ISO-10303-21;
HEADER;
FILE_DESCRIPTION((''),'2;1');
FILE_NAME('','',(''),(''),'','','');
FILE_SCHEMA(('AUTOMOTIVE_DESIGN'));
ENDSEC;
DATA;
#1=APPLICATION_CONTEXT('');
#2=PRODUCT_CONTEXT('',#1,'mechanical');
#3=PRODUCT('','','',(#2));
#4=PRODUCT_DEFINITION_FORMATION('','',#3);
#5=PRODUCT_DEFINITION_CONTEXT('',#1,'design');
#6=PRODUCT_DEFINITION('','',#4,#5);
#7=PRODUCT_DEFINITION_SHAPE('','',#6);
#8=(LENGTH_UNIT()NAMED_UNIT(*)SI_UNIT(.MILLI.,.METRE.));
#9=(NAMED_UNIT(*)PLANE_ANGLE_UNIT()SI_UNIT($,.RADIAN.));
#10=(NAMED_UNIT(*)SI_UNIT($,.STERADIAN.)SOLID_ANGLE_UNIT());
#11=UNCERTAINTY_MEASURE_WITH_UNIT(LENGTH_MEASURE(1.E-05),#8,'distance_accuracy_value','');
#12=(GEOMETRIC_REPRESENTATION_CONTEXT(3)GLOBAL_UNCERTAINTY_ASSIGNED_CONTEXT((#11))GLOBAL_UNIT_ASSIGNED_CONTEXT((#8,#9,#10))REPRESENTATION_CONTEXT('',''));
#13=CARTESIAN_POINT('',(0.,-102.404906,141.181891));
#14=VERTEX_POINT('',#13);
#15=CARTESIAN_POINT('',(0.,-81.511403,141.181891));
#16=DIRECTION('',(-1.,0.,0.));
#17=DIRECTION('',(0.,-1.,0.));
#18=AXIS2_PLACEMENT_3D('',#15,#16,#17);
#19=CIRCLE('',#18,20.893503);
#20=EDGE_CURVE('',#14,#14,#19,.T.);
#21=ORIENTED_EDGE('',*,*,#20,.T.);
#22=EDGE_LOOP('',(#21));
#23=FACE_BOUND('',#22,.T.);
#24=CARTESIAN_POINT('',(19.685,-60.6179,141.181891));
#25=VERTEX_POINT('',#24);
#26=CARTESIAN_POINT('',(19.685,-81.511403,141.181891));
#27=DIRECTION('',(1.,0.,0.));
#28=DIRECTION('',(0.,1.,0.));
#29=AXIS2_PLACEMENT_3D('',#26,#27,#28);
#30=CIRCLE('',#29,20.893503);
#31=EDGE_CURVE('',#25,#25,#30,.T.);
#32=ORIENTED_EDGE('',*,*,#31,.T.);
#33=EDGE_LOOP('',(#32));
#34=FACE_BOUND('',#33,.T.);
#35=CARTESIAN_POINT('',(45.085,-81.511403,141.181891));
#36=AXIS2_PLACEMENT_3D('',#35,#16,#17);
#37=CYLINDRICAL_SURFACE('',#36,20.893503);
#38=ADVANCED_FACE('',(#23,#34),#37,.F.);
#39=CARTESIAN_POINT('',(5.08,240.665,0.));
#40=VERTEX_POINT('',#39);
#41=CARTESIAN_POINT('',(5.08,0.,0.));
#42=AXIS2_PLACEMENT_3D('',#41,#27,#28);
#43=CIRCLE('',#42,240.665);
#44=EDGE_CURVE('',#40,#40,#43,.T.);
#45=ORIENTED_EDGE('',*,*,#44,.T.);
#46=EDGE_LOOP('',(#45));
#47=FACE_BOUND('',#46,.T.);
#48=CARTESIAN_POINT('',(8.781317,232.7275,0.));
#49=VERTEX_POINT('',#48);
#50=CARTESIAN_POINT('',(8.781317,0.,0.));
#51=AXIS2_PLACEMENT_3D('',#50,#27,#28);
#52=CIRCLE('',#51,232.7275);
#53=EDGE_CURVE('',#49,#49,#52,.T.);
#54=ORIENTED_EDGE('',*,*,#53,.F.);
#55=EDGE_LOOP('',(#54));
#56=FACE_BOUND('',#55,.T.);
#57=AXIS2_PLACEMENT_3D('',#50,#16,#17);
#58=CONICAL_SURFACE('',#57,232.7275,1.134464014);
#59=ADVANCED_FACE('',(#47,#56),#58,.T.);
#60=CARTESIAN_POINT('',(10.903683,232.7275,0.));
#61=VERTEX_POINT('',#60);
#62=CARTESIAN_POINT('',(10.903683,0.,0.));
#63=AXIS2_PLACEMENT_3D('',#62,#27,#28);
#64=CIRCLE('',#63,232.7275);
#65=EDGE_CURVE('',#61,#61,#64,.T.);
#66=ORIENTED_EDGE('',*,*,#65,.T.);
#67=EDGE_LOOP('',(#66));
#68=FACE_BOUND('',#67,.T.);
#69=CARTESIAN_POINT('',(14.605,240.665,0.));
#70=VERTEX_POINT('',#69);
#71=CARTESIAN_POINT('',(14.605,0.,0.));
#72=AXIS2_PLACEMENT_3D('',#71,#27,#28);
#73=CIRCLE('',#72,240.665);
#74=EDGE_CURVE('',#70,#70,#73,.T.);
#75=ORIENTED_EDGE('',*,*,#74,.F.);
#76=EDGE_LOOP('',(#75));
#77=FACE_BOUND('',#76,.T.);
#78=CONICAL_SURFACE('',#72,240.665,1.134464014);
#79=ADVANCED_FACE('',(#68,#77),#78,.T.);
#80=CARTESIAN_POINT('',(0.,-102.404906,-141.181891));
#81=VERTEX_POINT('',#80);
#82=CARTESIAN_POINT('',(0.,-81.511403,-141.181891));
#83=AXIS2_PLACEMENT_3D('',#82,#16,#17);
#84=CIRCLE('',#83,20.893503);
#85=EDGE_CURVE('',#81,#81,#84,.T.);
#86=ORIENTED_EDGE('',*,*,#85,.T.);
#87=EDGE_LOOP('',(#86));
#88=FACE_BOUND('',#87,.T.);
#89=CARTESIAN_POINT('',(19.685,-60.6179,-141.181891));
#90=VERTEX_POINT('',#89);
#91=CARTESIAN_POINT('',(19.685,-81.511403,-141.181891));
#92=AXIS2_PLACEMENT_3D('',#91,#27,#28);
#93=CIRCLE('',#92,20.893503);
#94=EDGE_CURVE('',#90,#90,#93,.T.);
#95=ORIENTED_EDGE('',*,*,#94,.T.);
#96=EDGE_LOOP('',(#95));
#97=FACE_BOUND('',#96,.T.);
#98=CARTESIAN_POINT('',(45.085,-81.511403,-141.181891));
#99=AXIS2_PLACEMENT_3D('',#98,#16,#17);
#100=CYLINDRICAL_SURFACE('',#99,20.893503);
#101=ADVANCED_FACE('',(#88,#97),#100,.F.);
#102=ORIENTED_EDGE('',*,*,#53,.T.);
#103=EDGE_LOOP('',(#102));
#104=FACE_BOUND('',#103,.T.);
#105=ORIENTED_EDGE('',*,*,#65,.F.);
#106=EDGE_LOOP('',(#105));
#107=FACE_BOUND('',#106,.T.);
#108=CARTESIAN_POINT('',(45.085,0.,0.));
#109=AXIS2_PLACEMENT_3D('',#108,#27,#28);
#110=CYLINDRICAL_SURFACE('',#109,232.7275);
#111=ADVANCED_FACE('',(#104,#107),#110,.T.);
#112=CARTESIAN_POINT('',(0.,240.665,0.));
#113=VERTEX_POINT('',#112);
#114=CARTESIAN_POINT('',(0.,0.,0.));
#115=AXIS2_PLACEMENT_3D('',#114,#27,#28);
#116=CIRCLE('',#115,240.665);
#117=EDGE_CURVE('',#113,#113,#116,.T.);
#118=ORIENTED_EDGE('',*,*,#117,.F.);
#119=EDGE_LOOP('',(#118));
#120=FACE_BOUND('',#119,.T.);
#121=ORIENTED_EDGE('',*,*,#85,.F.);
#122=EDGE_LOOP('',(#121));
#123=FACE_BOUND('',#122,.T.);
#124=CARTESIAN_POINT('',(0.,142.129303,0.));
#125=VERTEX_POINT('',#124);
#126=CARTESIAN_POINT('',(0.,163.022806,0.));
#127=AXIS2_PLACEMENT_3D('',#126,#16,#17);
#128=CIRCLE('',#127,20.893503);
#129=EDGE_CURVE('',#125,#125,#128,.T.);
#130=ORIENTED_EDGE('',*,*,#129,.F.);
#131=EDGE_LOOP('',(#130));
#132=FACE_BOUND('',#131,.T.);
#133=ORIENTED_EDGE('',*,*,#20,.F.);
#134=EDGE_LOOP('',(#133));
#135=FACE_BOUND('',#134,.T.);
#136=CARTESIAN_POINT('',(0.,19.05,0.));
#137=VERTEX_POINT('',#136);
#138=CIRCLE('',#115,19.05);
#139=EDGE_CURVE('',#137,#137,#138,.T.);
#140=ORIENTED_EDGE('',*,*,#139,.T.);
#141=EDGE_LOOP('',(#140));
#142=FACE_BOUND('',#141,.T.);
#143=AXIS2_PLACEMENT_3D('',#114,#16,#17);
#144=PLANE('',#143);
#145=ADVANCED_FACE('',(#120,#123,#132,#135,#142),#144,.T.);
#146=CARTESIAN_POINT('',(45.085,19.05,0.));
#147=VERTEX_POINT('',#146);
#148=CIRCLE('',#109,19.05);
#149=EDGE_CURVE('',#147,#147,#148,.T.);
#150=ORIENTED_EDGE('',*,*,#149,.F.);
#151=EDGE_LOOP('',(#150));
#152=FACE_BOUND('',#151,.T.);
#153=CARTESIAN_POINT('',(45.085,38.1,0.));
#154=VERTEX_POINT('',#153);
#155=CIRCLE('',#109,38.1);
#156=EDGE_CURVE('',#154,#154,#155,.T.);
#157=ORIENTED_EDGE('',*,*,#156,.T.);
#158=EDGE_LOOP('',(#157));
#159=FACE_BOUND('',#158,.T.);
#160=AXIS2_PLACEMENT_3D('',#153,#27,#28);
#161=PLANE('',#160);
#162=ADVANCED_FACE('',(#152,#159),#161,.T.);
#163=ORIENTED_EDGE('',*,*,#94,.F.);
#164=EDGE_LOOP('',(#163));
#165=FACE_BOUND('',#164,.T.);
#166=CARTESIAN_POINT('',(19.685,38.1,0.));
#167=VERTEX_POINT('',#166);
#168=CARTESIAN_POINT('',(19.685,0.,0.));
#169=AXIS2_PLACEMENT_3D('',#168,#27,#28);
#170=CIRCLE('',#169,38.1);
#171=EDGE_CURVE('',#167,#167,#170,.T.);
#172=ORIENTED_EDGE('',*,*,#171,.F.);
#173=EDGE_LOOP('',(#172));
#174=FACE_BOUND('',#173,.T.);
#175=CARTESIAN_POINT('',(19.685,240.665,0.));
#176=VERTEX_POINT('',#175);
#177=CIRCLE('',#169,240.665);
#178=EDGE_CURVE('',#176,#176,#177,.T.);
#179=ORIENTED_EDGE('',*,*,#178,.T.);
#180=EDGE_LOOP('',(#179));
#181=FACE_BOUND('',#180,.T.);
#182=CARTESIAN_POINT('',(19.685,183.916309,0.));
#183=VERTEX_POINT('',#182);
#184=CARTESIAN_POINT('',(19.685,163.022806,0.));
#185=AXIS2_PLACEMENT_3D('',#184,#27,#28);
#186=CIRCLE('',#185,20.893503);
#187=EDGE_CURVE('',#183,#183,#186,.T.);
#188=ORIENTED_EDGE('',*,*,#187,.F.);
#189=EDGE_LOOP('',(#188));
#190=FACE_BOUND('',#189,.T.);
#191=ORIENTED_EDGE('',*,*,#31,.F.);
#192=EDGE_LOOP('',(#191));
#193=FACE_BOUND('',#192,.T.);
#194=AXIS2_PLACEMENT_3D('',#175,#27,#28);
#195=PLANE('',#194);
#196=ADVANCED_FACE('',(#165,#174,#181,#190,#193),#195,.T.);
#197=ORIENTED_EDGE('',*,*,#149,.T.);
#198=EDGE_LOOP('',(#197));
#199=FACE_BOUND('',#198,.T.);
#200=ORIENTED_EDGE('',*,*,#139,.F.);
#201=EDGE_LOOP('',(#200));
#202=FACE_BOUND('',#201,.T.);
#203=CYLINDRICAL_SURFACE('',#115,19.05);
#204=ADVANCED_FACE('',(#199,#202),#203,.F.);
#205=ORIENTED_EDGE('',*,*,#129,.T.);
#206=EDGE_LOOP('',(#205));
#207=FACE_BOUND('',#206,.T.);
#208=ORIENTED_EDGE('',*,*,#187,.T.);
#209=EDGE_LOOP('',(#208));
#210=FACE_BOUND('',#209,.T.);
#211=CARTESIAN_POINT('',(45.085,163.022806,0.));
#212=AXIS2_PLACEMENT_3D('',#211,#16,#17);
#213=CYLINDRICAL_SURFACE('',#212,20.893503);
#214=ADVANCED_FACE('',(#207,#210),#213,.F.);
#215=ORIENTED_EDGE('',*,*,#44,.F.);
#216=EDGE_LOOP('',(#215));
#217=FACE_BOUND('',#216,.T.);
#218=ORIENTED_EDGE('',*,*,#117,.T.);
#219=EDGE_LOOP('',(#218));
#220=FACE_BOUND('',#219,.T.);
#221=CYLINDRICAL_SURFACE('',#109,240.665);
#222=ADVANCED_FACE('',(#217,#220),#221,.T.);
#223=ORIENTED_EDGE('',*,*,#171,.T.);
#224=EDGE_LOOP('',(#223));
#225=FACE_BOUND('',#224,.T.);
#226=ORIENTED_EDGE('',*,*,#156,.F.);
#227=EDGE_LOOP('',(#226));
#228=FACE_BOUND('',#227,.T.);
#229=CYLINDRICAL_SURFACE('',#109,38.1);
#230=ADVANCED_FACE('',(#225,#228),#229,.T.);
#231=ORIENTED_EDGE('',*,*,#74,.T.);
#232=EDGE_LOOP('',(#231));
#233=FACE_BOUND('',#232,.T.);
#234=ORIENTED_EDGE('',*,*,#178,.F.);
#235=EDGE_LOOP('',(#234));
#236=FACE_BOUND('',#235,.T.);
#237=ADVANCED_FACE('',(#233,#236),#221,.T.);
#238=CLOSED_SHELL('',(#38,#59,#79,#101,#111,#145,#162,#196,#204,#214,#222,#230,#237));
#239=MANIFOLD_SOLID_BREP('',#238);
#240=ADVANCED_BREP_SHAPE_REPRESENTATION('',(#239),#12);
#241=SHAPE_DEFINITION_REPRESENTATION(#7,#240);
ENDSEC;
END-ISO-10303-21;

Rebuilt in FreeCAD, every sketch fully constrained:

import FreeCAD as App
import Part
import Sketcher
from FreeCAD import Vector
Q = App.Units.Quantity

doc = App.newDocument("Part")
body = doc.addObject("PartDesign::Body", "Body")

# Sketch on XY plane
sketch1 = body.newObject("Sketcher::SketchObject", "Sketch")
sketch1.AttachmentSupport = (doc.getObject("XY_Plane"), [""])
sketch1.MapMode = "FlatFace"
sketch1.addGeometry([
    Part.LineSegment(Vector(0, 240.7, 0), Vector(0, 0, 0)),  # 0
    Part.LineSegment(Vector(0, 0, 0), Vector(45.1, 0, 0)),  # 1
    Part.LineSegment(Vector(45.1, 0, 0), Vector(45.1, 38.1, 0)),  # 2
    Part.LineSegment(Vector(45.1, 38.1, 0), Vector(19.7, 38.1, 0)),  # 3
    Part.LineSegment(Vector(19.7, 38.1, 0), Vector(19.7, 240.7, 0)),  # 4
    Part.LineSegment(Vector(19.7, 240.7, 0), Vector(14.6, 240.7, 0)),  # 5
    Part.LineSegment(Vector(14.6, 240.7, 0), Vector(10.9, 232.7, 0)),  # 6
    Part.LineSegment(Vector(10.9, 232.7, 0), Vector(8.8, 232.7, 0)),  # 7
    Part.LineSegment(Vector(8.8, 232.7, 0), Vector(5.1, 240.7, 0)),  # 8
    Part.LineSegment(Vector(5.1, 240.7, 0), Vector(0, 240.7, 0)),  # 9
], False)
sketch1.addConstraint([
    Sketcher.Constraint("Coincident", 0, 2, 1, 1),
    Sketcher.Constraint("Coincident", 1, 2, 2, 1),
    Sketcher.Constraint("Coincident", 2, 2, 3, 1),
    Sketcher.Constraint("Coincident", 3, 2, 4, 1),
    Sketcher.Constraint("Coincident", 4, 2, 5, 1),
    Sketcher.Constraint("Coincident", 5, 2, 6, 1),
    Sketcher.Constraint("Coincident", 6, 2, 7, 1),
    Sketcher.Constraint("Coincident", 7, 2, 8, 1),
    Sketcher.Constraint("Coincident", 8, 2, 9, 1),
    Sketcher.Constraint("Coincident", 9, 2, 0, 1),
    Sketcher.Constraint("Vertical", 0),
    Sketcher.Constraint("Horizontal", 1),
    Sketcher.Constraint("Vertical", 2),
    Sketcher.Constraint("Horizontal", 3),
    Sketcher.Constraint("Vertical", 4),
    Sketcher.Constraint("Horizontal", 5),
    Sketcher.Constraint("Horizontal", 7),
    Sketcher.Constraint("Horizontal", 9),
    Sketcher.Constraint("Coincident", 0, 2, -1, 1),
    Sketcher.Constraint("Horizontal", 5, 2, 8, 2),
    Sketcher.Constraint("Equal", 5, 9),
    Sketcher.Constraint("Equal", 6, 8),
    Sketcher.Constraint("DistanceX", 3, 2, 3, 1, Q("1 in")),
    Sketcher.Constraint("DistanceX", 5, 2, 5, 1, Q("0.2 in")),
    Sketcher.Constraint("DistanceY", 2, 1, 2, 2, Q("1.5 in")),
    Sketcher.Constraint("Angle", 6, Q("-115 deg")),
    Sketcher.Constraint("DistanceX", 1, 1, 1, 2, Q("1.775 in")),
    Sketcher.Constraint("DistanceY", 0, 2, 0, 1, Q("9.475 in")),
    Sketcher.Constraint("DistanceY", 6, 2, 5, 2, Q("0.3125 in")),
])
revolution = body.newObject("PartDesign::Revolution", "Revolution")
revolution.Profile = sketch1
revolution.ReferenceAxis = (sketch1, ["H_Axis"])
revolution.Angle = 360

# Sketch on YZ plane
sketch2 = body.newObject("Sketcher::SketchObject", "Sketch001")
sketch2.AttachmentSupport = (doc.getObject("YZ_Plane"), [""])
sketch2.MapMode = "FlatFace"
sketch2.AttachmentOffset = App.Placement(Vector(0, 0, 1.775 * 25.4), App.Rotation())
sketch2.addGeometry(Part.Circle(Vector(0, 0, 0), Vector(0, 0, 1), 19), False)
sketch2.addConstraint([
    Sketcher.Constraint("Coincident", 0, 3, -1, 1),
    Sketcher.Constraint("Diameter", 0, Q("1.5 in")),
])
pocket1 = body.newObject("PartDesign::Pocket", "Pocket")
pocket1.Profile = sketch2
pocket1.Type = "ThroughAll"

# Sketch on YZ plane
sketch3 = body.newObject("Sketcher::SketchObject", "Sketch002")
sketch3.AttachmentSupport = (doc.getObject("YZ_Plane"), [""])
sketch3.MapMode = "FlatFace"
sketch3.addGeometry([
    Part.Circle(Vector(163, 0, 0), Vector(0, 0, 1), 21),
    Part.Circle(Vector(-82, 141, 0), Vector(0, 0, 1), 21),
    Part.Circle(Vector(-82, -141, 0), Vector(0, 0, 1), 21),
], False)
sketch3.addConstraint([
    Sketcher.Constraint("Equal", 0, 1),
    Sketcher.Constraint("Equal", 1, 2),
    Sketcher.Constraint("Symmetric", 1, 3, 2, 3, -1),
    Sketcher.Constraint("PointOnObject", 0, 3, -1),
    Sketcher.Constraint("Diameter", 0, Q("41.787006 mm")),
    Sketcher.Constraint("DistanceY", -1, 1, 1, 3, Q("141.181891 mm")),
    Sketcher.Constraint("DistanceX", 1, 3, 0, 3, Q("244.534209 mm")),
    Sketcher.Constraint("DistanceX", -1, 1, 0, 3, Q("163.022806 mm")),
])
pocket2 = body.newObject("PartDesign::Pocket", "Pocket001")
pocket2.Profile = sketch3
pocket2.Type = "ThroughAll"
pocket2.Reversed = True

doc.recompute()
